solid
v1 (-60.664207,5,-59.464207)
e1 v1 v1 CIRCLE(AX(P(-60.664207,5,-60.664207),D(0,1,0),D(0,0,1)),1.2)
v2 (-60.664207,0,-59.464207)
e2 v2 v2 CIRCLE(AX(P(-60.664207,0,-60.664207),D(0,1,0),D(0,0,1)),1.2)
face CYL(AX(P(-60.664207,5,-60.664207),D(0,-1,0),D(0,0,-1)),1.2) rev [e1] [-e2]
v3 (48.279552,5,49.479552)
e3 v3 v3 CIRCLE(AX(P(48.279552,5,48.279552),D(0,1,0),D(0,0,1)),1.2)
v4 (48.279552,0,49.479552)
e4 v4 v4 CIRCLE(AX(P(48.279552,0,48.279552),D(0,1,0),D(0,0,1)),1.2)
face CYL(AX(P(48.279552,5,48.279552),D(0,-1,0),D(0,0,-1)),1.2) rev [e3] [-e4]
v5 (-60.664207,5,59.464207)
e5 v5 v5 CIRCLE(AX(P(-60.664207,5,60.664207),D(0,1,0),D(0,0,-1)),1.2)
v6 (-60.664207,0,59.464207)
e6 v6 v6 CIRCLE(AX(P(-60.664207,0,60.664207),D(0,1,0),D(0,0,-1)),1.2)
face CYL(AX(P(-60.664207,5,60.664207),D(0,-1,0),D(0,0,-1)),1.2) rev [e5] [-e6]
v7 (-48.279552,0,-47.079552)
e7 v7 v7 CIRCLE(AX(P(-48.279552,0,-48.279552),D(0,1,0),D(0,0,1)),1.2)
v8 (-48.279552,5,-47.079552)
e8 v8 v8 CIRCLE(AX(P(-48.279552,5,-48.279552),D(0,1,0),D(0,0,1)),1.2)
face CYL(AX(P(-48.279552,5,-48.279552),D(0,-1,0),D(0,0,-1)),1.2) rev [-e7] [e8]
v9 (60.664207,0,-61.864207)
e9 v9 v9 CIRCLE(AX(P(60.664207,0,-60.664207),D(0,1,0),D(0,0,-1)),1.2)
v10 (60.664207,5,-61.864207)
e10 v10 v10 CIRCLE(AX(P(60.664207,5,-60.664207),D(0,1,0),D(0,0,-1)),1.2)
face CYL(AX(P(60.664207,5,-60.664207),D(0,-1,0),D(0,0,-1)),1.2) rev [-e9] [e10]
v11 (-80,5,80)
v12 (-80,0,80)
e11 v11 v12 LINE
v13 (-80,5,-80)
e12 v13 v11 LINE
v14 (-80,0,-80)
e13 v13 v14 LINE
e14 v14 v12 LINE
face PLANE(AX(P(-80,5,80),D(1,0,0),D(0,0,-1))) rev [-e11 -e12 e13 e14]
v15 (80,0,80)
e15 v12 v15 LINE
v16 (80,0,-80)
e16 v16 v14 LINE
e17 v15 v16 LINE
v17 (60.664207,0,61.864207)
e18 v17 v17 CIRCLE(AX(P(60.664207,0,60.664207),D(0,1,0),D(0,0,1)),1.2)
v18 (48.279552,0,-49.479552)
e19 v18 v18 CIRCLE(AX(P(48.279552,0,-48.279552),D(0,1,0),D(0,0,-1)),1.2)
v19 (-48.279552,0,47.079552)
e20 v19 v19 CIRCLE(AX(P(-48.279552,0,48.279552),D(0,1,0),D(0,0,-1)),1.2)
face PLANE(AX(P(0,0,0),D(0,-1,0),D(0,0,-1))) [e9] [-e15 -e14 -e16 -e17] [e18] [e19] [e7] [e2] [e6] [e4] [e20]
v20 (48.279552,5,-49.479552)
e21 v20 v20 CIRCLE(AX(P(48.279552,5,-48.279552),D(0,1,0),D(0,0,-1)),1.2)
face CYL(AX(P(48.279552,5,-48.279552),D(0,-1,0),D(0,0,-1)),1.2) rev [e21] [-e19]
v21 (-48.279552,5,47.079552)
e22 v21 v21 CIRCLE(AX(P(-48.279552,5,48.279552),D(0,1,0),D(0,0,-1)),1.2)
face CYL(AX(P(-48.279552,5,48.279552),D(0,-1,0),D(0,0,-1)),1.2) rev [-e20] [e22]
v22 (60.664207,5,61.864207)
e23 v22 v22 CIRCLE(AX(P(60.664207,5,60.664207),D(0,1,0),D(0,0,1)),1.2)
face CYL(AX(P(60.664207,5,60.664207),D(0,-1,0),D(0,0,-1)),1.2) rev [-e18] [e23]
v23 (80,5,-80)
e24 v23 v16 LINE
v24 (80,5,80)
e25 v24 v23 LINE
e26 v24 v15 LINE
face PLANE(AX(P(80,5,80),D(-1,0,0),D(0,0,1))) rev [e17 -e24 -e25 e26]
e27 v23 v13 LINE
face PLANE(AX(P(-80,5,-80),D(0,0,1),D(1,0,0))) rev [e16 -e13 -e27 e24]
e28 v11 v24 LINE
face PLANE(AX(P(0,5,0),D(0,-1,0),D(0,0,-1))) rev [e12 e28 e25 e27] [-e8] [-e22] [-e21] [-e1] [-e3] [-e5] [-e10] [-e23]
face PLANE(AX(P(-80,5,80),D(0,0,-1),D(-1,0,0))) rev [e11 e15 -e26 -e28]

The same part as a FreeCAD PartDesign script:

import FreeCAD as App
import Part
import Sketcher
from FreeCAD import Vector
Q = App.Units.Quantity

doc = App.newDocument("Part")
params = doc.addObject("Spreadsheet::Sheet", "Params")
for row, (alias, value) in enumerate([
    ("sketch1_diameter", "2.4 mm"),
    ("sketch1_width", "160 mm"),
    ("pad1_length", "5 mm"),
], start=1):
    params.set(f"A{row}", alias)
    params.set(f"B{row}", "=" + value)
    params.setAlias(f"B{row}", alias)

body = doc.addObject("PartDesign::Body", "Body")

sketch1 = body.newObject("Sketcher::SketchObject", "Sketch")
sketch1.AttachmentSupport = (doc.getObject("XZ_Plane"), [""])
sketch1.MapMode = "FlatFace"
sketch1.addGeometry([
    Part.LineSegment(Vector(-80, -80, 0), Vector(-80, 80, 0)),
    Part.LineSegment(Vector(-80, 80, 0), Vector(80, 80, 0)),
    Part.LineSegment(Vector(80, 80, 0), Vector(80, -80, 0)),
    Part.LineSegment(Vector(80, -80, 0), Vector(-80, -80, 0)),
    Part.Circle(Vector(-60.7, 60.7, 0), Vector(0, 0, 1), 1.2),
    Part.Circle(Vector(-48.3, 48.3, 0), Vector(0, 0, 1), 1.2),
    Part.Circle(Vector(60.7, 60.7, 0), Vector(0, 0, 1), 1.2),
    Part.Circle(Vector(48.3, 48.3, 0), Vector(0, 0, 1), 1.2),
    Part.Circle(Vector(-48.3, -48.3, 0), Vector(0, 0, 1), 1.2),
    Part.Circle(Vector(-60.7, -60.7, 0), Vector(0, 0, 1), 1.2),
    Part.Circle(Vector(48.3, -48.3, 0), Vector(0, 0, 1), 1.2),
    Part.Circle(Vector(60.7, -60.7, 0), Vector(0, 0, 1), 1.2),
], False)
sketch1.addConstraint([
    Sketcher.Constraint("Coincident", 0, 2, 1, 1),
    Sketcher.Constraint("Coincident", 1, 2, 2, 1),
    Sketcher.Constraint("Coincident", 2, 2, 3, 1),
    Sketcher.Constraint("Coincident", 3, 2, 0, 1),
    Sketcher.Constraint("Vertical", 0),
    Sketcher.Constraint("Horizontal", 1),
    Sketcher.Constraint("Vertical", 2),
    Sketcher.Constraint("Horizontal", 3),
    Sketcher.Constraint("Equal", 4, 5),
    Sketcher.Constraint("Equal", 5, 6),
    Sketcher.Constraint("Equal", 6, 7),
    Sketcher.Constraint("Equal", 7, 8),
    Sketcher.Constraint("Equal", 8, 9),
    Sketcher.Constraint("Equal", 9, 10),
    Sketcher.Constraint("Equal", 10, 11),
    Sketcher.Constraint("Symmetric", 7, 3, 8, 3, -1, 1),
    Sketcher.Constraint("Symmetric", 6, 3, 9, 3, -1, 1),
    Sketcher.Constraint("Symmetric", 5, 3, 10, 3, -1, 1),
    Sketcher.Constraint("Symmetric", 4, 3, 11, 3, -1, 1),
    Sketcher.Constraint("Symmetric", 0, 2, 2, 2, -1, 1),
    Sketcher.Constraint("Symmetric", 4, 3, 6, 3, -2),
    Sketcher.Constraint("Symmetric", 5, 3, 7, 3, -2),
    Sketcher.Constraint("Equal", 3, 0),
    Sketcher.Constraint("Diameter", 4, Q("2.4 mm")),
    Sketcher.Constraint("DistanceX", 1, 1, 1, 2, Q("160 mm")),
    Sketcher.Constraint("DistanceX", 5, 3, 6, 3, Q("108.943759 mm")),
    Sketcher.Constraint("DistanceY", 8, 3, 4, 3, Q("108.943759 mm")),
    Sketcher.Constraint("DistanceX", 4, 3, -1, 1, Q("60.664207 mm")),
    Sketcher.Constraint("DistanceY", -1, 1, 4, 3, Q("60.664207 mm")),
])
sketch1.setExpression("Constraints[23]", "Params.sketch1_diameter")
sketch1.setExpression("Constraints[24]", "Params.sketch1_width")
pad1 = body.newObject("PartDesign::Pad", "Pad")
pad1.Profile = sketch1
pad1.setExpression("Length", "Params.pad1_length")
pad1.Reversed = True

doc.recompute()
